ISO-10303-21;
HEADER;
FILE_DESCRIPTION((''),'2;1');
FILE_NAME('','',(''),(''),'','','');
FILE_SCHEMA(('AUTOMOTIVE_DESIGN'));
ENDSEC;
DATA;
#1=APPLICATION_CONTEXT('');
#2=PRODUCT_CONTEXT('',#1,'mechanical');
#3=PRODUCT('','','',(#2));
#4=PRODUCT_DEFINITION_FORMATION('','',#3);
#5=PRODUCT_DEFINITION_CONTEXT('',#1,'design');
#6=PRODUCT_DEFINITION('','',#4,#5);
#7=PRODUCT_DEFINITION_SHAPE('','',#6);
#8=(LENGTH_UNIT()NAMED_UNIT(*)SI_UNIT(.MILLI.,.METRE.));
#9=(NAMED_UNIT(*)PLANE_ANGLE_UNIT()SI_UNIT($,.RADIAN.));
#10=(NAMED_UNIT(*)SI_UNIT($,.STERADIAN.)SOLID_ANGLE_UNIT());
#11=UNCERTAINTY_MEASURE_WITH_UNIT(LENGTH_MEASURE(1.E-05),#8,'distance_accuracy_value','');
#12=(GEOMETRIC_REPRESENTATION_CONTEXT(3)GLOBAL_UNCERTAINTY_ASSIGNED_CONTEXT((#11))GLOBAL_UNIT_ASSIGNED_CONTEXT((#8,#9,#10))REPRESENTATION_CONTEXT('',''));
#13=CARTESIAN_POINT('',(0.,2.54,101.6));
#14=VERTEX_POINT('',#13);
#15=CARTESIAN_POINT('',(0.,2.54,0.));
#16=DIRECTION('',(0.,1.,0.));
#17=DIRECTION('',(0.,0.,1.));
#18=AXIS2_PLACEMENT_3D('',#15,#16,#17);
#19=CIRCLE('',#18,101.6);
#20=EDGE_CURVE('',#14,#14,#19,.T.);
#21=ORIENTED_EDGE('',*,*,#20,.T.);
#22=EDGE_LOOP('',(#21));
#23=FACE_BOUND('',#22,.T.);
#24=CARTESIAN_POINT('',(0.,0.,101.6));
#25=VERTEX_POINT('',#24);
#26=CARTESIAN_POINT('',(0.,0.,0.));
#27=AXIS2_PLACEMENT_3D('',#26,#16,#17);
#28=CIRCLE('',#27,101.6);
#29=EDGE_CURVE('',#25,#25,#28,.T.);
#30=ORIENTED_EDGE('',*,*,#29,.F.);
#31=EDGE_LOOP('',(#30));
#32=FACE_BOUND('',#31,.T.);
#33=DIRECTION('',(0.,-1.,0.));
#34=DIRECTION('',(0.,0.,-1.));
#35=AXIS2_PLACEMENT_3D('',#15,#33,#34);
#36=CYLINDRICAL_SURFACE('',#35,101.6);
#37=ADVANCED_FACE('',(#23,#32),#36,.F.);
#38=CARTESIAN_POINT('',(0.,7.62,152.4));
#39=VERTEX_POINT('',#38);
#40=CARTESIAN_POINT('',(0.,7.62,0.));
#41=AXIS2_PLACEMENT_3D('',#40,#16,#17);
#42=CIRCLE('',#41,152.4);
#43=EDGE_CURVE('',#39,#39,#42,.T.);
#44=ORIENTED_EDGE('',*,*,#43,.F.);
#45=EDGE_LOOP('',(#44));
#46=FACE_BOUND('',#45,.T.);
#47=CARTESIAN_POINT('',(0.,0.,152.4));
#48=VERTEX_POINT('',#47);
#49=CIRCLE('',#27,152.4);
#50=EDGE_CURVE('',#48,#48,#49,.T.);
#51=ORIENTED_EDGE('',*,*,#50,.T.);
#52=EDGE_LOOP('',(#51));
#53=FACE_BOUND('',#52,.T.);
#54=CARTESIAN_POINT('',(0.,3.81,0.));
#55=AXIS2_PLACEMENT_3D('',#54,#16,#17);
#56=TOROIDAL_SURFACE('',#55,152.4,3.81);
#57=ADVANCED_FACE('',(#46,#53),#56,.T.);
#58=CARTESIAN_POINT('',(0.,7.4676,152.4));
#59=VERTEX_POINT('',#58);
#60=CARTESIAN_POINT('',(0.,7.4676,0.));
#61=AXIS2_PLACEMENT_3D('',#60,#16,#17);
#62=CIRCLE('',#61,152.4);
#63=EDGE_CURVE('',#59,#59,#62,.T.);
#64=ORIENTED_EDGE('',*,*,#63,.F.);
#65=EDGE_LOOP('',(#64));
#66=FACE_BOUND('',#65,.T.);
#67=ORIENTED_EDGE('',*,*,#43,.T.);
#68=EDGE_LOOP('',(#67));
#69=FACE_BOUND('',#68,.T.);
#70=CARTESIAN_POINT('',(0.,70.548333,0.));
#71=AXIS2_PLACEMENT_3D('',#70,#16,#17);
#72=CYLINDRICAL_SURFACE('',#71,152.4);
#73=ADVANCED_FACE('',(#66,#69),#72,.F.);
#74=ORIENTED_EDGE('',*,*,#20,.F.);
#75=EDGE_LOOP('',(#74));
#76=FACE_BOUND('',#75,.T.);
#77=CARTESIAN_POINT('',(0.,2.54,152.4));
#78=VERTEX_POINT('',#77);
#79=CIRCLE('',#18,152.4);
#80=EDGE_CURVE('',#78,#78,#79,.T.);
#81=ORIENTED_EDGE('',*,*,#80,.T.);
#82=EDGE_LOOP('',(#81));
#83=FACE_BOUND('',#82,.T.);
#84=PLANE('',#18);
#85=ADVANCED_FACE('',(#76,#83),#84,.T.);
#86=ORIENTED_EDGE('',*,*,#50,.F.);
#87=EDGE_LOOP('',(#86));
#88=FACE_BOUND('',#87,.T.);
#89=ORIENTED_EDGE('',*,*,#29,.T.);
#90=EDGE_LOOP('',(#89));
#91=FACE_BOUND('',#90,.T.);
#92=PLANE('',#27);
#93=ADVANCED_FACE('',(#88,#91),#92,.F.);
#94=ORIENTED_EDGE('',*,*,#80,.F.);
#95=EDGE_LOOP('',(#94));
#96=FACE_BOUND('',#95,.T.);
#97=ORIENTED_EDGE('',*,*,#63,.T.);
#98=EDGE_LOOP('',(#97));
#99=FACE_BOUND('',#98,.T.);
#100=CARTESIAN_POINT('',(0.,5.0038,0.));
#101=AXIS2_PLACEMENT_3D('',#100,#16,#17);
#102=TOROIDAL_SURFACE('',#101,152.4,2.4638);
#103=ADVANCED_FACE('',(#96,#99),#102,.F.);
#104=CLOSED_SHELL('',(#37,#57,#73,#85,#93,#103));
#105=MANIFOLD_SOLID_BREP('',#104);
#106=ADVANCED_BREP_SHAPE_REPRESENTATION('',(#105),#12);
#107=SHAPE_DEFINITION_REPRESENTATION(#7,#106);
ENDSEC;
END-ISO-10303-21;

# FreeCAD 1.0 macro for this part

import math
import FreeCAD as App
import Part
import Sketcher
Q = App.Units.Quantity

doc = App.newDocument("Part")
body = doc.addObject("PartDesign::Body", "Body")

sketch1 = body.newObject("Sketcher::SketchObject", "Sketch")
sketch1.AttachmentSupport = (doc.getObject("XZ_Plane"), [""])
sketch1.MapMode = "FlatFace"
sketch1.addGeometry([
    Part.Circle(App.Vector(0, 0, 0), App.Vector(0, 0, 1), 152),
    Part.Circle(App.Vector(0, 0, 0), App.Vector(0, 0, 1), 102),
], False)
sketch1.addConstraint([
    Sketcher.Constraint("Coincident", 0, 3, -1, 1),
    Sketcher.Constraint("Coincident", 1, 3, -1, 1),
    Sketcher.Constraint("Diameter", 0, Q("12 in")),
    Sketcher.Constraint("Diameter", 1, Q("8 in")),
])
pad1 = body.newObject("PartDesign::Pad", "Pad")
pad1.Profile = sketch1
pad1.Length = Q("0.1 in")
pad1.Reversed = True

sketch2 = body.newObject("Sketcher::SketchObject", "Sketch001")
sketch2.AttachmentSupport = (doc.getObject("YZ_Plane"), [""])
sketch2.MapMode = "FlatFace"
sketch2.addGeometry([
    Part.LineSegment(App.Vector(7.47, 152.4, 0), App.Vector(7.62, 152.4, 0)),
    Part.ArcOfCircle(Part.Circle(App.Vector(3.81, 152.4, 0), App.Vector(0, 0, 1), 3.81), math.radians(0), math.radians(180)),
    Part.LineSegment(App.Vector(0, 152.4, 0), App.Vector(2.54, 152.4, 0)),
    Part.ArcOfCircle(Part.Circle(App.Vector(5, 152.4, 0), App.Vector(0, 0, 1), 2.46), math.radians(0), math.radians(180)),
], False)
sketch2.addConstraint([
    Sketcher.Constraint("Coincident", 0, 2, 1, 1),
    Sketcher.Constraint("Coincident", 1, 2, 2, 1),
    Sketcher.Constraint("Coincident", 2, 2, 3, 2),
    Sketcher.Constraint("Coincident", 3, 1, 0, 1),
    Sketcher.Constraint("Horizontal", 0),
    Sketcher.Constraint("Horizontal", 2),
    Sketcher.Constraint("PointOnObject", 1, 2, -2),
    Sketcher.Constraint("Horizontal", 1, 3, 3, 3),
    Sketcher.Constraint("Horizontal", 3, 3, 0, 2),
    Sketcher.Constraint("Horizontal", 0, 2, 1, 2),
    Sketcher.Constraint("Radius", 1, Q("0.15 in")),
    Sketcher.Constraint("DistanceX", 2, 1, 2, 2, Q("0.1 in")),
    Sketcher.Constraint("DistanceY", -1, 1, 1, 3, Q("6 in")),
    Sketcher.Constraint("Radius", 3, Q("0.097 in")),
])
revolution = body.newObject("PartDesign::Revolution", "Revolution")
revolution.Profile = sketch2
revolution.ReferenceAxis = (sketch2, ["H_Axis"])
revolution.Angle = 360

doc.recompute()
